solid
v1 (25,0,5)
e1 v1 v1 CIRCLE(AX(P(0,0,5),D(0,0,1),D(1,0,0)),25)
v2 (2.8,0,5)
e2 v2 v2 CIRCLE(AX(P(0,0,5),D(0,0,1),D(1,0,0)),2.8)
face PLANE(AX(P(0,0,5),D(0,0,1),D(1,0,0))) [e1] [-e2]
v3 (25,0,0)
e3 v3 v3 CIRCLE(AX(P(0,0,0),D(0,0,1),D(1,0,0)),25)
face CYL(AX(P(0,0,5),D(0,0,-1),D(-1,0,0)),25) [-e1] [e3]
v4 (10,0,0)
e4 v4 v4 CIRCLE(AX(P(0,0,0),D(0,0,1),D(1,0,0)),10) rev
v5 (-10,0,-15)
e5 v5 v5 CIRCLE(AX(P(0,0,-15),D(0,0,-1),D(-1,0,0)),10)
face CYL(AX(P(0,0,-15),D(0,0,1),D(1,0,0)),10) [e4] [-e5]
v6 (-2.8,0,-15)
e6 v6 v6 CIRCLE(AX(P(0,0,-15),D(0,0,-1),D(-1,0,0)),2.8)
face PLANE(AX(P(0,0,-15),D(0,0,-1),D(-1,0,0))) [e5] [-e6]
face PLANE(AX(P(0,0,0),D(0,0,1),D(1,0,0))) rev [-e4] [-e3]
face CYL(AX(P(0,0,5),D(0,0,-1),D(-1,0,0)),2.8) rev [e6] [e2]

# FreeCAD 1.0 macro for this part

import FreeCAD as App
import Part
import Sketcher

V = App.Vector

doc = App.newDocument("Part")
body = doc.addObject("PartDesign::Body", "Body")

# Sketch on XY plane
sketch1 = doc.addObject("Sketcher::SketchObject", "Sketch")
body.addObject(sketch1)
sketch1.AttachmentSupport = (doc.XY_Plane, [""])
sketch1.MapMode = "FlatFace"
sketch1.addGeometry(Part.Circle(V(0, 0, 0), V(0, 0, 1), 25), False)
sketch1.addGeometry(Part.Circle(V(0, 0, 0), V(0, 0, 1), 2.8), False)
sketch1.addConstraint(Sketcher.Constraint("Coincident", 0, 3, -1, 1))
sketch1.addConstraint(Sketcher.Constraint("Coincident", 1, 3, -1, 1))
sketch1.addConstraint(Sketcher.Constraint("Diameter", 0, 50.0))
sketch1.addConstraint(Sketcher.Constraint("Diameter", 1, 5.6))
pad1 = doc.addObject("PartDesign::Pad", "Pad")
body.addObject(pad1)
pad1.Profile = sketch1
pad1.Length = 5

# Sketch on XY plane
sketch2 = doc.addObject("Sketcher::SketchObject", "Sketch001")
body.addObject(sketch2)
sketch2.AttachmentSupport = (doc.XY_Plane, [""])
sketch2.MapMode = "FlatFace"
sketch2.AttachmentOffset = App.Placement(V(0, 0, -15), App.Rotation())
sketch2.addGeometry(Part.Circle(V(0, 0, 0), V(0, 0, 1), 10), False)
sketch2.addGeometry(Part.Circle(V(0, 0, 0), V(0, 0, 1), 2.8), False)
sketch2.addConstraint(Sketcher.Constraint("Coincident", 0, 3, -1, 1))
sketch2.addConstraint(Sketcher.Constraint("Coincident", 1, 3, -1, 1))
sketch2.addConstraint(Sketcher.Constraint("Diameter", 0, 20.0))
sketch2.addConstraint(Sketcher.Constraint("Diameter", 1, 5.6))
pad2 = doc.addObject("PartDesign::Pad", "Pad001")
body.addObject(pad2)
pad2.Profile = sketch2
pad2.Length = 15

doc.recompute()
